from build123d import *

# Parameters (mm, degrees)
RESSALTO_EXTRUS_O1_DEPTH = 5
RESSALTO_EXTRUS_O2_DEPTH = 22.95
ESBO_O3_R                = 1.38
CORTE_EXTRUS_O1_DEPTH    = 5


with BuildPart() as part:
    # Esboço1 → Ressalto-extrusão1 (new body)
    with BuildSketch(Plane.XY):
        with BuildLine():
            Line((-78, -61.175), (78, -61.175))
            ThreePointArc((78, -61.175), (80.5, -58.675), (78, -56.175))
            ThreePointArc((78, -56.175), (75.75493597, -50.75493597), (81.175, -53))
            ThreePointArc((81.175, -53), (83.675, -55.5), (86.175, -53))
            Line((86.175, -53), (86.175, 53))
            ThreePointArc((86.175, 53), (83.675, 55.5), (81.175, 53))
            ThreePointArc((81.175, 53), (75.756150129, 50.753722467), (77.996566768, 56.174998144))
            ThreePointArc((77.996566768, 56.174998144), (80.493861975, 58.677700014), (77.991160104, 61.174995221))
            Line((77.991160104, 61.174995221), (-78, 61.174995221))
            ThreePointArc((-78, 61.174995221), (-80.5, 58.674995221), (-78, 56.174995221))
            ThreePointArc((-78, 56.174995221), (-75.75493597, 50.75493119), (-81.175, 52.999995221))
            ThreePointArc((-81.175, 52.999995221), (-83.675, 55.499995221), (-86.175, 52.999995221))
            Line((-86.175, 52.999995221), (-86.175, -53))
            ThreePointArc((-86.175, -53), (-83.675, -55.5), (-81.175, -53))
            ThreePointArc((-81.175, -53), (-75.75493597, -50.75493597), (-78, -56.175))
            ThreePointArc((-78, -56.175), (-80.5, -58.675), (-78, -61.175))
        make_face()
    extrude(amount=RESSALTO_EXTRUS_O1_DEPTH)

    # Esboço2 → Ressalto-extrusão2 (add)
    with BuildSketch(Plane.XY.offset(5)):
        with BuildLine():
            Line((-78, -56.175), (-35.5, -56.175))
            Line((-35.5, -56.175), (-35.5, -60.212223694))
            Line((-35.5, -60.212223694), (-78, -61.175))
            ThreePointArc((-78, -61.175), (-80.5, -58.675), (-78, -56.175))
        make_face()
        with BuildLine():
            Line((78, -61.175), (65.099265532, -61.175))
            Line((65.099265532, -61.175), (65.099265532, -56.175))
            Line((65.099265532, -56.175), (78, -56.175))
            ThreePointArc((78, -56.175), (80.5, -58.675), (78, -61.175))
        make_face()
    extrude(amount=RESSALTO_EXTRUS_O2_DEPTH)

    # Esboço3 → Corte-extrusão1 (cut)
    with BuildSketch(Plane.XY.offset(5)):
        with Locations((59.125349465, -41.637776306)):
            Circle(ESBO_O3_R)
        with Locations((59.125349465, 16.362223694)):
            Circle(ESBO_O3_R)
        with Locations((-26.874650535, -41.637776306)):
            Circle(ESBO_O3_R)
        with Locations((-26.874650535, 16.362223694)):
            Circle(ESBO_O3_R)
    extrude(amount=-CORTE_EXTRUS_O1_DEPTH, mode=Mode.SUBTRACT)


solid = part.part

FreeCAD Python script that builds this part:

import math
import FreeCAD as App
import Part
import Sketcher
Q = App.Units.Quantity

doc = App.newDocument("Part")
body = doc.addObject("PartDesign::Body", "Body")

# Sketch on XY plane
sketch1 = body.newObject("Sketcher::SketchObject", "Sketch")
sketch1.AttachmentSupport = (doc.getObject("XY_Plane"), [""])
sketch1.MapMode = "FlatFace"
sketch1.addGeometry(Part.LineSegment(App.Vector(-78, -61.2, 0), App.Vector(78, -61.2, 0)), False)
sketch1.addGeometry(Part.ArcOfCircle(Part.Circle(App.Vector(78, -58.7, 0), App.Vector(0, 0, 1), 2.5), math.radians(-90), math.radians(90)), False)
sketch1.addGeometry(Part.ArcOfCircle(Part.Circle(App.Vector(78, -53, 0), App.Vector(0, 0, 1), 3.2), math.radians(0), math.radians(270)), False)
sketch1.addGeometry(Part.ArcOfCircle(Part.Circle(App.Vector(83.7, -53, 0), App.Vector(0, 0, 1), 2.5), math.radians(180), math.radians(360)), False)
sketch1.addGeometry(Part.LineSegment(App.Vector(86.2, -53, 0), App.Vector(86.2, 53, 0)), False)
sketch1.addGeometry(Part.ArcOfCircle(Part.Circle(App.Vector(83.7, 53, 0), App.Vector(0, 0, 1), 2.5), math.radians(0), math.radians(180)), False)
sketch1.addGeometry(Part.ArcOfCircle(Part.Circle(App.Vector(78, 53, 0), App.Vector(0, 0, 1), 3.2), math.radians(90), math.radians(360)), False)
sketch1.addGeometry(Part.ArcOfCircle(Part.Circle(App.Vector(78, 58.7, 0), App.Vector(0, 0, 1), 2.5), math.radians(-90), math.radians(90)), False)
sketch1.addGeometry(Part.LineSegment(App.Vector(78, 61.2, 0), App.Vector(-78, 61.2, 0)), False)
sketch1.addGeometry(Part.ArcOfCircle(Part.Circle(App.Vector(-78, 58.7, 0), App.Vector(0, 0, 1), 2.5), math.radians(90), math.radians(270)), False)
sketch1.addGeometry(Part.ArcOfCircle(Part.Circle(App.Vector(-78, 53, 0), App.Vector(0, 0, 1), 3.2), math.radians(180), math.radians(450)), False)
sketch1.addGeometry(Part.ArcOfCircle(Part.Circle(App.Vector(-83.7, 53, 0), App.Vector(0, 0, 1), 2.5), math.radians(0), math.radians(180)), False)
sketch1.addGeometry(Part.LineSegment(App.Vector(-86.2, 53, 0), App.Vector(-86.2, -53, 0)), False)
sketch1.addGeometry(Part.ArcOfCircle(Part.Circle(App.Vector(-83.7, -53, 0), App.Vector(0, 0, 1), 2.5), math.radians(180), math.radians(360)), False)
sketch1.addGeometry(Part.ArcOfCircle(Part.Circle(App.Vector(-78, -53, 0), App.Vector(0, 0, 1), 3.2), math.radians(-90), math.radians(180)), False)
sketch1.addGeometry(Part.ArcOfCircle(Part.Circle(App.Vector(-78, -58.7, 0), App.Vector(0, 0, 1), 2.5), math.radians(90), math.radians(270)), False)
sketch1.addConstraint(Sketcher.Constraint("Tangent", 0, 2, 1, 1))
sketch1.addConstraint(Sketcher.Constraint("Tangent", 1, 2, 2, 2))
sketch1.addConstraint(Sketcher.Constraint("Tangent", 2, 1, 3, 1))
sketch1.addConstraint(Sketcher.Constraint("Tangent", 3, 2, 4, 1))
sketch1.addConstraint(Sketcher.Constraint("Tangent", 4, 2, 5, 1))
sketch1.addConstraint(Sketcher.Constraint("Tangent", 5, 2, 6, 2))
sketch1.addConstraint(Sketcher.Constraint("Tangent", 6, 1, 7, 1))
sketch1.addConstraint(Sketcher.Constraint("Coincident", 7, 2, 8, 1))
sketch1.addConstraint(Sketcher.Constraint("Tangent", 8, 2, 9, 1))
sketch1.addConstraint(Sketcher.Constraint("Tangent", 9, 2, 10, 2))
sketch1.addConstraint(Sketcher.Constraint("Tangent", 10, 1, 11, 1))
sketch1.addConstraint(Sketcher.Constraint("Tangent", 11, 2, 12, 1))
sketch1.addConstraint(Sketcher.Constraint("Tangent", 12, 2, 13, 1))
sketch1.addConstraint(Sketcher.Constraint("Tangent", 13, 2, 14, 2))
sketch1.addConstraint(Sketcher.Constraint("Tangent", 14, 1, 15, 1))
sketch1.addConstraint(Sketcher.Constraint("Tangent", 15, 2, 0, 1))
sketch1.addConstraint(Sketcher.Constraint("Horizontal", 0))
sketch1.addConstraint(Sketcher.Constraint("Vertical", 4))
sketch1.addConstraint(Sketcher.Constraint("Horizontal", 8))
sketch1.addConstraint(Sketcher.Constraint("Vertical", 12))
sketch1.addConstraint(Sketcher.Constraint("Equal", 1, 3))
sketch1.addConstraint(Sketcher.Constraint("Equal", 3, 5))
sketch1.addConstraint(Sketcher.Constraint("Equal", 2, 6))
sketch1.addConstraint(Sketcher.Constraint("Equal", 5, 7))
sketch1.addConstraint(Sketcher.Constraint("Equal", 7, 9))
sketch1.addConstraint(Sketcher.Constraint("Equal", 6, 10))
sketch1.addConstraint(Sketcher.Constraint("Equal", 9, 11))
sketch1.addConstraint(Sketcher.Constraint("Equal", 11, 13))
sketch1.addConstraint(Sketcher.Constraint("Equal", 10, 14))
sketch1.addConstraint(Sketcher.Constraint("Equal", 13, 15))
sketch1.addConstraint(Sketcher.Constraint("Symmetric", 1, 3, 9, 3, -1, 1))
sketch1.addConstraint(Sketcher.Constraint("Symmetric", 3, 3, 11, 3, -1, 1))
sketch1.addConstraint(Sketcher.Constraint("Horizontal", 2, 3, 3, 3))
sketch1.addConstraint(Sketcher.Constraint("Horizontal", 5, 3, 6, 3))
sketch1.addConstraint(Sketcher.Constraint("Horizontal", 3, 3, 13, 3))
sketch1.addConstraint(Sketcher.Constraint("Vertical", 1, 3, 2, 3))
sketch1.addConstraint(Sketcher.Constraint("Vertical", 14, 3, 15, 3))
sketch1.addConstraint(Sketcher.Constraint("Radius", 1, Q("2.5 mm")))
sketch1.addConstraint(Sketcher.Constraint("DistanceX", 0, 1, 0, 2, Q("156 mm")))
sketch1.addConstraint(Sketcher.Constraint("DistanceY", 4, 1, 4, 2, Q("106 mm")))
sketch1.addConstraint(Sketcher.Constraint("Radius", 2, Q("3.175 mm")))
sketch1.addConstraint(Sketcher.Constraint("DistanceX", 8, 2, 8, 1, Q("155.99116 mm")))
sketch1.addConstraint(Sketcher.Constraint("DistanceX", -1, 1, 7, 3, Q("77.993863 mm")))
pad1 = body.newObject("PartDesign::Pad", "Pad")
pad1.Profile = sketch1
pad1.Length = 5

# Sketch on XY plane
sketch2 = body.newObject("Sketcher::SketchObject", "Sketch001")
sketch2.AttachmentSupport = (doc.getObject("XY_Plane"), [""])
sketch2.MapMode = "FlatFace"
sketch2.AttachmentOffset = App.Placement(App.Vector(0, 0, 5), App.Rotation())
sketch2.addGeometry(Part.LineSegment(App.Vector(-35.5, -56.2, 0), App.Vector(-78, -56.2, 0)), False)
sketch2.addGeometry(Part.ArcOfCircle(Part.Circle(App.Vector(-78, -58.7, 0), App.Vector(0, 0, 1), 2.5), math.radians(90), math.radians(270)), False)
sketch2.addGeometry(Part.LineSegment(App.Vector(-78, -61.2, 0), App.Vector(-35.5, -60.2, 0)), False)
sketch2.addGeometry(Part.LineSegment(App.Vector(-35.5, -60.2, 0), App.Vector(-35.5, -56.2, 0)), False)
sketch2.addGeometry(Part.LineSegment(App.Vector(65.1, -61.2, 0), App.Vector(78, -61.2, 0)), False)
sketch2.addGeometry(Part.ArcOfCircle(Part.Circle(App.Vector(78, -58.7, 0), App.Vector(0, 0, 1), 2.5), math.radians(-90), math.radians(90)), False)
sketch2.addGeometry(Part.LineSegment(App.Vector(78, -56.2, 0), App.Vector(65.1, -56.2, 0)), False)
sketch2.addGeometry(Part.LineSegment(App.Vector(65.1, -56.2, 0), App.Vector(65.1, -61.2, 0)), False)
sketch2.addConstraint(Sketcher.Constraint("Tangent", 0, 2, 1, 1))
sketch2.addConstraint(Sketcher.Constraint("Coincident", 1, 2, 2, 1))
sketch2.addConstraint(Sketcher.Constraint("Coincident", 2, 2, 3, 1))
sketch2.addConstraint(Sketcher.Constraint("Coincident", 3, 2, 0, 1))
sketch2.addConstraint(Sketcher.Constraint("Tangent", 4, 2, 5, 1))
sketch2.addConstraint(Sketcher.Constraint("Tangent", 5, 2, 6, 1))
sketch2.addConstraint(Sketcher.Constraint("Coincident", 6, 2, 7, 1))
sketch2.addConstraint(Sketcher.Constraint("Coincident", 7, 2, 4, 1))
sketch2.addConstraint(Sketcher.Constraint("Horizontal", 0))
sketch2.addConstraint(Sketcher.Constraint("Vertical", 3))
sketch2.addConstraint(Sketcher.Constraint("Horizontal", 4))
sketch2.addConstraint(Sketcher.Constraint("Horizontal", 6))
sketch2.addConstraint(Sketcher.Constraint("Vertical", 7))
sketch2.addConstraint(Sketcher.Constraint("Equal", 1, 5))
sketch2.addConstraint(Sketcher.Constraint("Symmetric", 1, 3, 5, 3, -2))
sketch2.addConstraint(Sketcher.Constraint("Vertical", 0, 2, 1, 2))
sketch2.addConstraint(Sketcher.Constraint("Radius", 1, Q("2.5 mm")))
sketch2.addConstraint(Sketcher.Constraint("DistanceX", 0, 2, 0, 1, Q("42.5 mm")))
sketch2.addConstraint(Sketcher.Constraint("DistanceX", 1, 3, -1, 1, Q("78 mm")))
sketch2.addConstraint(Sketcher.Constraint("DistanceY", 1, 3, -1, 1, Q("58.675 mm")))
sketch2.addConstraint(Sketcher.Constraint("DistanceX", 4, 1, 4, 2, Q("12.900734 mm")))
sketch2.addConstraint(Sketcher.Constraint("DistanceY", 3, 1, 3, 2, Q("4.037224 mm")))
pad2 = body.newObject("PartDesign::Pad", "Pad001")
pad2.Profile = sketch2
pad2.Length = 22.95

# Sketch on XY plane
sketch3 = body.newObject("Sketcher::SketchObject", "Sketch002")
sketch3.AttachmentSupport = (doc.getObject("XY_Plane"), [""])
sketch3.MapMode = "FlatFace"
sketch3.AttachmentOffset = App.Placement(App.Vector(0, 0, 5), App.Rotation())
sketch3.addGeometry(Part.Circle(App.Vector(59.1, -41.6, 0), App.Vector(0, 0, 1), 1.4), False)
sketch3.addGeometry(Part.Circle(App.Vector(59.1, 16.4, 0), App.Vector(0, 0, 1), 1.4), False)
sketch3.addGeometry(Part.Circle(App.Vector(-26.9, -41.6, 0), App.Vector(0, 0, 1), 1.4), False)
sketch3.addGeometry(Part.Circle(App.Vector(-26.9, 16.4, 0), App.Vector(0, 0, 1), 1.4), False)
sketch3.addConstraint(Sketcher.Constraint("Equal", 0, 1))
sketch3.addConstraint(Sketcher.Constraint("Equal", 1, 2))
sketch3.addConstraint(Sketcher.Constraint("Equal", 2, 3))
sketch3.addConstraint(Sketcher.Constraint("Horizontal", 0, 3, 2, 3))
sketch3.addConstraint(Sketcher.Constraint("Horizontal", 1, 3, 3, 3))
sketch3.addConstraint(Sketcher.Constraint("Vertical", 0, 3, 1, 3))
sketch3.addConstraint(Sketcher.Constraint("Vertical", 2, 3, 3, 3))
sketch3.addConstraint(Sketcher.Constraint("Diameter", 0, Q("2.76 mm")))
sketch3.addConstraint(Sketcher.Constraint("DistanceY", 0, 3, 1, 3, Q("58 mm")))
sketch3.addConstraint(Sketcher.Constraint("DistanceX", 2, 3, 0, 3, Q("86 mm")))
sketch3.addConstraint(Sketcher.Constraint("DistanceX", -1, 1, 0, 3, Q("59.125349 mm")))
sketch3.addConstraint(Sketcher.Constraint("DistanceY", 0, 3, -1, 1, Q("41.637776 mm")))
pocket1 = body.newObject("PartDesign::Pocket", "Pocket")
pocket1.Profile = sketch3
pocket1.Length = 5

doc.recompute()
